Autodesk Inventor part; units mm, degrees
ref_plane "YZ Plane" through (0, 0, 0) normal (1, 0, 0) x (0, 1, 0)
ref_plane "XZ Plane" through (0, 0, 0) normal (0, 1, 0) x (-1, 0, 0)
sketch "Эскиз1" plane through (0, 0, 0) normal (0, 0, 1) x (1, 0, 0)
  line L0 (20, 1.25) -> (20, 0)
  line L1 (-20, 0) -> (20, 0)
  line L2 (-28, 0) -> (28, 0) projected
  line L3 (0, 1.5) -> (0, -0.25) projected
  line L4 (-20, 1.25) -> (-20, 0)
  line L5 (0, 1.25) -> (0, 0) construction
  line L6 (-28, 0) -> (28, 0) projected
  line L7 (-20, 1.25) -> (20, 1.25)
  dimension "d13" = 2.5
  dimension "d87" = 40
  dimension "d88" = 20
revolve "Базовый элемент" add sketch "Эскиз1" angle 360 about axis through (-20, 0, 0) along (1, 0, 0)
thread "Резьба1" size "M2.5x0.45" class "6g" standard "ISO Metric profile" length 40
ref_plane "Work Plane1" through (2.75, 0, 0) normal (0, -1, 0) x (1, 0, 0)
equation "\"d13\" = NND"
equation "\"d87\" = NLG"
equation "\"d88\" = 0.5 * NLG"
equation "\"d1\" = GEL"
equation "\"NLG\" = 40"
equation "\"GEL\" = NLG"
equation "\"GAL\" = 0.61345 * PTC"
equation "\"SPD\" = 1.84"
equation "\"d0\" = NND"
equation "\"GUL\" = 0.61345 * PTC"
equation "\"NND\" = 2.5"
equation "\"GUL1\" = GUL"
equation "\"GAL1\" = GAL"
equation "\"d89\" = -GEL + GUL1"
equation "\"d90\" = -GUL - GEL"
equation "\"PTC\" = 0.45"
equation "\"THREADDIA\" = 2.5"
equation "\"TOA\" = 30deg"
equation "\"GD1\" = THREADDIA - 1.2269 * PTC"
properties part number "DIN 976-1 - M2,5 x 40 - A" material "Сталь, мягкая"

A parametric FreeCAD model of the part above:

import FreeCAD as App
import Part
import Sketcher

V = App.Vector
Q = App.Units.Quantity

doc = App.newDocument("Part")
params = doc.addObject("Spreadsheet::Sheet", "Params")
for row, (alias, value) in enumerate([
    ("sketch1_width", "40 mm"),
    ("sketch1_height", "1.25 mm"),
    ("revolution_angle", "360 deg"),
], start=1):
    params.set(f"A{row}", alias)
    params.set(f"B{row}", "=" + value)
    params.setAlias(f"B{row}", alias)

body = doc.addObject("PartDesign::Body", "Body")

sketch1 = doc.addObject("Sketcher::SketchObject", "Sketch")
body.addObject(sketch1)
sketch1.AttachmentSupport = (doc.XY_Plane, [""])
sketch1.MapMode = "FlatFace"
sketch1.addGeometry([
    Part.LineSegment(V(20, 0, 0), V(20, 1.25, 0)),
    Part.LineSegment(V(20, 1.25, 0), V(-20, 1.25, 0)),
    Part.LineSegment(V(-20, 1.25, 0), V(-20, 0, 0)),
    Part.LineSegment(V(-20, 0, 0), V(20, 0, 0)),
], False)
sketch1.addConstraint([
    Sketcher.Constraint("Coincident", 0, 2, 1, 1),
    Sketcher.Constraint("Coincident", 1, 2, 2, 1),
    Sketcher.Constraint("Coincident", 2, 2, 3, 1),
    Sketcher.Constraint("Coincident", 3, 2, 0, 1),
    Sketcher.Constraint("Vertical", 0),
    Sketcher.Constraint("Horizontal", 1),
    Sketcher.Constraint("Vertical", 2),
    Sketcher.Constraint("Horizontal", 3),
    Sketcher.Constraint("Symmetric", 2, 2, 3, 2, -1, 1),
    Sketcher.Constraint("DistanceX", 1, 2, 1, 1, Q("40 mm")),
    Sketcher.Constraint("DistanceY", 0, 1, 0, 2, Q("1.25 mm")),
])
sketch1.setExpression("Constraints[9]", "Params.sketch1_width")
sketch1.setExpression("Constraints[10]", "Params.sketch1_height")
revolution = doc.addObject("PartDesign::Revolution", "Revolution")
body.addObject(revolution)
revolution.Profile = sketch1
revolution.ReferenceAxis = (sketch1, ["H_Axis"])
revolution.setExpression("Angle", "Params.revolution_angle")

doc.recompute()
